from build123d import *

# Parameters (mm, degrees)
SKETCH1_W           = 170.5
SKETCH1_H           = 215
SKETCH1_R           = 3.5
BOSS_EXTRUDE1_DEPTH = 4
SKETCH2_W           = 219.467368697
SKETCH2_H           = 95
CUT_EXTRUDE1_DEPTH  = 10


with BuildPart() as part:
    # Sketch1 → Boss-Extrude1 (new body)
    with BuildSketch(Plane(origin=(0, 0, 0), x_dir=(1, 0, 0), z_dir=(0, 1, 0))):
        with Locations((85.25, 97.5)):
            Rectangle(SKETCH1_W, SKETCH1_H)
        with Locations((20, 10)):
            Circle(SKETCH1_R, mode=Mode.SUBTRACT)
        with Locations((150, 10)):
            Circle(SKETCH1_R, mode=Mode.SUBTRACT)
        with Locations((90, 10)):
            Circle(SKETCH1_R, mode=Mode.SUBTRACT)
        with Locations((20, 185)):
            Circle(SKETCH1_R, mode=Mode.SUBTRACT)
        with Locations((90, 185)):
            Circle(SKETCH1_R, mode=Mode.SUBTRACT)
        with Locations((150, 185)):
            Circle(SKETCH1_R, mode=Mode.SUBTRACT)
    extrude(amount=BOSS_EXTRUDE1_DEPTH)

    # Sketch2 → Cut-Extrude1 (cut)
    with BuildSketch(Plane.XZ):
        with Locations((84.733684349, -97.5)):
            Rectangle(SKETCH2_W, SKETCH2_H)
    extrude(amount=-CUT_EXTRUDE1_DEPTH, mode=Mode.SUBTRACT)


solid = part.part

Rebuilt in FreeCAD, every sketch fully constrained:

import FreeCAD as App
import Part
import Sketcher

V = App.Vector
Q = App.Units.Quantity


def add_polygon(sketch, points):
    """Adds a closed chain of lines whose ends are joined by coincident constraints."""
    first, n = sketch.GeometryCount, len(points)
    for a, b in zip(points, points[1:] + points[:1]):
        sketch.addGeometry(Part.LineSegment(App.Vector(*a, 0), App.Vector(*b, 0)), False)
    for i in range(n):
        sketch.addConstraint(Sketcher.Constraint("Coincident", first + i, 2, first + (i + 1) % n, 1))

doc = App.newDocument("Part")
params = doc.addObject("Spreadsheet::Sheet", "Params")
for row, (alias, value) in enumerate([
    ("sketch1_diameter", "7 mm"),
    ("sketch1_height", "215 mm"),
    ("sketch1_width", "170.5 mm"),
    ("pad1_length", "4 mm"),
    ("sketch2_height", "95 mm"),
    ("pocket1_length", "10 mm"),
], start=1):
    params.set(f"A{row}", alias)
    params.set(f"B{row}", "=" + value)
    params.setAlias(f"B{row}", alias)

body = doc.addObject("PartDesign::Body", "Body")
body.AllowCompound = True

# Sketch on XZ plane
sketch1 = body.newObject("Sketcher::SketchObject", "Sketch")
sketch1.AttachmentSupport = (doc.getObject("XZ_Plane"), [""])
sketch1.MapMode = "FlatFace"
add_polygon(sketch1, [(0, -205), (0, 10), (170.5, 10), (170.5, -205)])  # lines 0-3
sketch1.addGeometry(Part.Circle(V(20, -10, 0), V(0, 0, 1), 3.5), False)  # 4
sketch1.addGeometry(Part.Circle(V(90, -10, 0), V(0, 0, 1), 3.5), False)  # 5
sketch1.addGeometry(Part.Circle(V(150, -10, 0), V(0, 0, 1), 3.5), False)  # 6
sketch1.addGeometry(Part.Circle(V(20, -185, 0), V(0, 0, 1), 3.5), False)  # 7
sketch1.addGeometry(Part.Circle(V(90, -185, 0), V(0, 0, 1), 3.5), False)  # 8
sketch1.addGeometry(Part.Circle(V(150, -185, 0), V(0, 0, 1), 3.5), False)  # 9
sketch1.addConstraint(Sketcher.Constraint("Vertical", 0))
sketch1.addConstraint(Sketcher.Constraint("Horizontal", 1))
sketch1.addConstraint(Sketcher.Constraint("Vertical", 2))
sketch1.addConstraint(Sketcher.Constraint("Horizontal", 3))
sketch1.addConstraint(Sketcher.Constraint("Equal", 4, 5))
sketch1.addConstraint(Sketcher.Constraint("Equal", 5, 6))
sketch1.addConstraint(Sketcher.Constraint("Equal", 6, 7))
sketch1.addConstraint(Sketcher.Constraint("Equal", 7, 8))
sketch1.addConstraint(Sketcher.Constraint("Equal", 8, 9))
sketch1.addConstraint(Sketcher.Constraint("PointOnObject", 0, 2, -2))
sketch1.addConstraint(Sketcher.Constraint("Horizontal", 4, 3, 5, 3))
sketch1.addConstraint(Sketcher.Constraint("Horizontal", 5, 3, 6, 3))
sketch1.addConstraint(Sketcher.Constraint("Horizontal", 7, 3, 8, 3))
sketch1.addConstraint(Sketcher.Constraint("Horizontal", 8, 3, 9, 3))
sketch1.addConstraint(Sketcher.Constraint("Vertical", 4, 3, 7, 3))
sketch1.addConstraint(Sketcher.Constraint("Vertical", 5, 3, 8, 3))
sketch1.addConstraint(Sketcher.Constraint("Vertical", 6, 3, 9, 3))
sketch1.addConstraint(Sketcher.Constraint("Diameter", 4, Q("7 mm")))
sketch1.addConstraint(Sketcher.Constraint("DistanceY", 0, 1, 0, 2, Q("215 mm")))
sketch1.addConstraint(Sketcher.Constraint("DistanceX", 1, 1, 1, 2, Q("170.5 mm")))
sketch1.addConstraint(Sketcher.Constraint("DistanceX", -1, 1, 4, 3, Q("20 mm")))
sketch1.addConstraint(Sketcher.Constraint("DistanceY", 4, 3, -1, 1, Q("10 mm")))
sketch1.addConstraint(Sketcher.Constraint("DistanceX", -1, 1, 5, 3, Q("90 mm")))
sketch1.addConstraint(Sketcher.Constraint("DistanceX", -1, 1, 6, 3, Q("150 mm")))
sketch1.addConstraint(Sketcher.Constraint("DistanceY", 7, 3, -1, 1, Q("185 mm")))
sketch1.addConstraint(Sketcher.Constraint("DistanceY", -1, 1, 0, 2, Q("10 mm")))
sketch1.setExpression("Constraints[21]", "Params.sketch1_diameter")
sketch1.setExpression("Constraints[22]", "Params.sketch1_height")
sketch1.setExpression("Constraints[23]", "Params.sketch1_width")
pad1 = body.newObject("PartDesign::Pad", "Pad")
pad1.Profile = sketch1
pad1.setExpression("Length", "Params.pad1_length")
pad1.Reversed = True

# Sketch on XZ plane
sketch2 = body.newObject("Sketcher::SketchObject", "Sketch001")
sketch2.AttachmentSupport = (doc.getObject("XZ_Plane"), [""])
sketch2.MapMode = "FlatFace"
add_polygon(sketch2, [(-25, -50), (-25, -145), (194, -145), (194, -50)])  # lines 0-3
sketch2.addConstraint(Sketcher.Constraint("Vertical", 0))
sketch2.addConstraint(Sketcher.Constraint("Horizontal", 1))
sketch2.addConstraint(Sketcher.Constraint("Vertical", 2))
sketch2.addConstraint(Sketcher.Constraint("Horizontal", 3))
sketch2.addConstraint(Sketcher.Constraint("DistanceY", 0, 2, 0, 1, Q("95 mm")))
sketch2.addConstraint(Sketcher.Constraint("DistanceX", 0, 2, -1, 1, Q("25 mm")))
sketch2.addConstraint(Sketcher.Constraint("DistanceY", 0, 2, -1, 1, Q("145 mm")))
sketch2.addConstraint(Sketcher.Constraint("DistanceX", 1, 1, 1, 2, Q("219.467369 mm")))
sketch2.setExpression("Constraints[8]", "Params.sketch2_height")
pocket1 = body.newObject("PartDesign::Pocket", "Pocket")
pocket1.Profile = sketch2
pocket1.setExpression("Length", "Params.pocket1_length")

doc.recompute()
